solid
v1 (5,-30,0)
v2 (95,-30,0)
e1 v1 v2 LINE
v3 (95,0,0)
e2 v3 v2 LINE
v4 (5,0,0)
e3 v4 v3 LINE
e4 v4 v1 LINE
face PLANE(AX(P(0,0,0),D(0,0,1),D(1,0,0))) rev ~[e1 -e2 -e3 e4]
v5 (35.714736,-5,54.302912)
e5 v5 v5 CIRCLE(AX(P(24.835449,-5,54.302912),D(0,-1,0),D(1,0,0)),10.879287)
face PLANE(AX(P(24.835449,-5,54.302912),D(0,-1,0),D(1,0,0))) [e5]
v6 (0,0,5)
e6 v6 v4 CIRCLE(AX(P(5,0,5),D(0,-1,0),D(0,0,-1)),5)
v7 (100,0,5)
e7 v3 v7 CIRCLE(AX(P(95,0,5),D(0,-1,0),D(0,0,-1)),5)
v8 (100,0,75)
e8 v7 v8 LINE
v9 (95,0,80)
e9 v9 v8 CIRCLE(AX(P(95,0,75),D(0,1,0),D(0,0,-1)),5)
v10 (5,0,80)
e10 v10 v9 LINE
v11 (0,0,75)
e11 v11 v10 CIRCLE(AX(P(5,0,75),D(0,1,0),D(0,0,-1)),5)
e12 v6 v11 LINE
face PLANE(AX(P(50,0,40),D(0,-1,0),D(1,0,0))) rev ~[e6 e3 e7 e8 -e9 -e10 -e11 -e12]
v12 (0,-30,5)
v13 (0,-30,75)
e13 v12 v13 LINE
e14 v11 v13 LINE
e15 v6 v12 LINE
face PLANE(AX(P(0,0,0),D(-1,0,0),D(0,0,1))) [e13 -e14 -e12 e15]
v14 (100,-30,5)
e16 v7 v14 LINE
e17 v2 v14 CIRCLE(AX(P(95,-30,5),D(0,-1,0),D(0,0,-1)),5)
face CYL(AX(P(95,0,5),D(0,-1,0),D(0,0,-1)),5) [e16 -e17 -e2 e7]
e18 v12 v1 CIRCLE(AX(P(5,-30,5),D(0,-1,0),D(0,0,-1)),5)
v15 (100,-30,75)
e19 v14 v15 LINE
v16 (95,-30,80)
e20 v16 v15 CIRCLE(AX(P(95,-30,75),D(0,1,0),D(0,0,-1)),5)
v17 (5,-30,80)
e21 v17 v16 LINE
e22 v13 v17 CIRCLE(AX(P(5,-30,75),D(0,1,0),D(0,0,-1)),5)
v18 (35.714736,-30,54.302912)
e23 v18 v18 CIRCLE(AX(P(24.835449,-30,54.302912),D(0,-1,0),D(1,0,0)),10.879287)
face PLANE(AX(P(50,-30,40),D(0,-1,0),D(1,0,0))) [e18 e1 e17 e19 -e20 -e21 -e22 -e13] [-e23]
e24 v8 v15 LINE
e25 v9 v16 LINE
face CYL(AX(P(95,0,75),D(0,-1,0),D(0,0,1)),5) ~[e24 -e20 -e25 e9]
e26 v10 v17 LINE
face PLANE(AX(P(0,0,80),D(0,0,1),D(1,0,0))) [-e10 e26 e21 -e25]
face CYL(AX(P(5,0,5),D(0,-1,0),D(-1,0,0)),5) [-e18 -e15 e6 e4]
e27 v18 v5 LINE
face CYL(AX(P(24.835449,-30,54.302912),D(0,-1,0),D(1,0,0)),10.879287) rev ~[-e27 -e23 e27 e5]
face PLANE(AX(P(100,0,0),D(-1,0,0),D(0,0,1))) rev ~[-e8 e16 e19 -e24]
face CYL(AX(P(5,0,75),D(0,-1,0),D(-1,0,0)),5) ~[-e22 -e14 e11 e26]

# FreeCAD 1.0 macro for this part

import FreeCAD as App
import Part
import Sketcher

V = App.Vector
Q = App.Units.Quantity


def edges_at(feature, points):
    """Names of the edges that pass closest to the given points."""
    edges = feature.Shape.Edges
    near = lambda p: min(range(len(edges)), key=lambda i: edges[i].distToShape(Part.Vertex(*p))[0])
    return sorted({f"Edge{near(p) + 1}" for p in points})


def add_polygon(sketch, points):
    """Adds a closed chain of lines whose ends are joined by coincident constraints."""
    first, n = sketch.GeometryCount, len(points)
    for a, b in zip(points, points[1:] + points[:1]):
        sketch.addGeometry(Part.LineSegment(App.Vector(*a, 0), App.Vector(*b, 0)), False)
    for i in range(n):
        sketch.addConstraint(Sketcher.Constraint("Coincident", first + i, 2, first + (i + 1) % n, 1))

doc = App.newDocument("Part")
body = doc.addObject("PartDesign::Body", "Body")

# Sketch on XZ plane
sketch1 = body.newObject("Sketcher::SketchObject", "Sketch")
sketch1.AttachmentSupport = (doc.getObject("XZ_Plane"), [""])
sketch1.MapMode = "FlatFace"
add_polygon(sketch1, [(0, 80), (0, 0), (100, 0), (100, 80)])  # lines 0-3
sketch1.addConstraint([
    Sketcher.Constraint("Vertical", 0),
    Sketcher.Constraint("Horizontal", 1),
    Sketcher.Constraint("Vertical", 2),
    Sketcher.Constraint("Horizontal", 3),
    Sketcher.Constraint("Coincident", 0, 2, -1, 1),
    Sketcher.Constraint("DistanceX", 1, 1, 1, 2, Q("100 mm")),
    Sketcher.Constraint("DistanceY", 0, 2, 0, 1, Q("80 mm")),
])
pad1 = body.newObject("PartDesign::Pad", "Pad")
pad1.Profile = sketch1
pad1.Length = 30

# Sketch on XZ plane
sketch2 = body.newObject("Sketcher::SketchObject", "Sketch001")
sketch2.AttachmentSupport = (doc.getObject("XZ_Plane"), [""])
sketch2.MapMode = "FlatFace"
sketch2.AttachmentOffset = App.Placement(V(0, 0, 30), App.Rotation())
sketch2.addGeometry(Part.Circle(V(25, 54, 0), V(0, 0, 1), 11), False)
sketch2.addConstraint([
    Sketcher.Constraint("Diameter", 0, Q("21.758574 mm")),
    Sketcher.Constraint("DistanceX", -1, 1, 0, 3, Q("24.835449 mm")),
    Sketcher.Constraint("DistanceY", -1, 1, 0, 3, Q("54.302912 mm")),
])
pocket1 = body.newObject("PartDesign::Pocket", "Pocket")
pocket1.Profile = sketch2
pocket1.Length = 25
doc.recompute()

fillet = body.newObject("PartDesign::Fillet", "Fillet")
fillet.Base = (pocket1, edges_at(pocket1, [
    (0, -15, 80),
    (100, -15, 80),
    (100, -15, 0),
    (0, -15, 0),
]))
fillet.Radius = 5

doc.recompute()
